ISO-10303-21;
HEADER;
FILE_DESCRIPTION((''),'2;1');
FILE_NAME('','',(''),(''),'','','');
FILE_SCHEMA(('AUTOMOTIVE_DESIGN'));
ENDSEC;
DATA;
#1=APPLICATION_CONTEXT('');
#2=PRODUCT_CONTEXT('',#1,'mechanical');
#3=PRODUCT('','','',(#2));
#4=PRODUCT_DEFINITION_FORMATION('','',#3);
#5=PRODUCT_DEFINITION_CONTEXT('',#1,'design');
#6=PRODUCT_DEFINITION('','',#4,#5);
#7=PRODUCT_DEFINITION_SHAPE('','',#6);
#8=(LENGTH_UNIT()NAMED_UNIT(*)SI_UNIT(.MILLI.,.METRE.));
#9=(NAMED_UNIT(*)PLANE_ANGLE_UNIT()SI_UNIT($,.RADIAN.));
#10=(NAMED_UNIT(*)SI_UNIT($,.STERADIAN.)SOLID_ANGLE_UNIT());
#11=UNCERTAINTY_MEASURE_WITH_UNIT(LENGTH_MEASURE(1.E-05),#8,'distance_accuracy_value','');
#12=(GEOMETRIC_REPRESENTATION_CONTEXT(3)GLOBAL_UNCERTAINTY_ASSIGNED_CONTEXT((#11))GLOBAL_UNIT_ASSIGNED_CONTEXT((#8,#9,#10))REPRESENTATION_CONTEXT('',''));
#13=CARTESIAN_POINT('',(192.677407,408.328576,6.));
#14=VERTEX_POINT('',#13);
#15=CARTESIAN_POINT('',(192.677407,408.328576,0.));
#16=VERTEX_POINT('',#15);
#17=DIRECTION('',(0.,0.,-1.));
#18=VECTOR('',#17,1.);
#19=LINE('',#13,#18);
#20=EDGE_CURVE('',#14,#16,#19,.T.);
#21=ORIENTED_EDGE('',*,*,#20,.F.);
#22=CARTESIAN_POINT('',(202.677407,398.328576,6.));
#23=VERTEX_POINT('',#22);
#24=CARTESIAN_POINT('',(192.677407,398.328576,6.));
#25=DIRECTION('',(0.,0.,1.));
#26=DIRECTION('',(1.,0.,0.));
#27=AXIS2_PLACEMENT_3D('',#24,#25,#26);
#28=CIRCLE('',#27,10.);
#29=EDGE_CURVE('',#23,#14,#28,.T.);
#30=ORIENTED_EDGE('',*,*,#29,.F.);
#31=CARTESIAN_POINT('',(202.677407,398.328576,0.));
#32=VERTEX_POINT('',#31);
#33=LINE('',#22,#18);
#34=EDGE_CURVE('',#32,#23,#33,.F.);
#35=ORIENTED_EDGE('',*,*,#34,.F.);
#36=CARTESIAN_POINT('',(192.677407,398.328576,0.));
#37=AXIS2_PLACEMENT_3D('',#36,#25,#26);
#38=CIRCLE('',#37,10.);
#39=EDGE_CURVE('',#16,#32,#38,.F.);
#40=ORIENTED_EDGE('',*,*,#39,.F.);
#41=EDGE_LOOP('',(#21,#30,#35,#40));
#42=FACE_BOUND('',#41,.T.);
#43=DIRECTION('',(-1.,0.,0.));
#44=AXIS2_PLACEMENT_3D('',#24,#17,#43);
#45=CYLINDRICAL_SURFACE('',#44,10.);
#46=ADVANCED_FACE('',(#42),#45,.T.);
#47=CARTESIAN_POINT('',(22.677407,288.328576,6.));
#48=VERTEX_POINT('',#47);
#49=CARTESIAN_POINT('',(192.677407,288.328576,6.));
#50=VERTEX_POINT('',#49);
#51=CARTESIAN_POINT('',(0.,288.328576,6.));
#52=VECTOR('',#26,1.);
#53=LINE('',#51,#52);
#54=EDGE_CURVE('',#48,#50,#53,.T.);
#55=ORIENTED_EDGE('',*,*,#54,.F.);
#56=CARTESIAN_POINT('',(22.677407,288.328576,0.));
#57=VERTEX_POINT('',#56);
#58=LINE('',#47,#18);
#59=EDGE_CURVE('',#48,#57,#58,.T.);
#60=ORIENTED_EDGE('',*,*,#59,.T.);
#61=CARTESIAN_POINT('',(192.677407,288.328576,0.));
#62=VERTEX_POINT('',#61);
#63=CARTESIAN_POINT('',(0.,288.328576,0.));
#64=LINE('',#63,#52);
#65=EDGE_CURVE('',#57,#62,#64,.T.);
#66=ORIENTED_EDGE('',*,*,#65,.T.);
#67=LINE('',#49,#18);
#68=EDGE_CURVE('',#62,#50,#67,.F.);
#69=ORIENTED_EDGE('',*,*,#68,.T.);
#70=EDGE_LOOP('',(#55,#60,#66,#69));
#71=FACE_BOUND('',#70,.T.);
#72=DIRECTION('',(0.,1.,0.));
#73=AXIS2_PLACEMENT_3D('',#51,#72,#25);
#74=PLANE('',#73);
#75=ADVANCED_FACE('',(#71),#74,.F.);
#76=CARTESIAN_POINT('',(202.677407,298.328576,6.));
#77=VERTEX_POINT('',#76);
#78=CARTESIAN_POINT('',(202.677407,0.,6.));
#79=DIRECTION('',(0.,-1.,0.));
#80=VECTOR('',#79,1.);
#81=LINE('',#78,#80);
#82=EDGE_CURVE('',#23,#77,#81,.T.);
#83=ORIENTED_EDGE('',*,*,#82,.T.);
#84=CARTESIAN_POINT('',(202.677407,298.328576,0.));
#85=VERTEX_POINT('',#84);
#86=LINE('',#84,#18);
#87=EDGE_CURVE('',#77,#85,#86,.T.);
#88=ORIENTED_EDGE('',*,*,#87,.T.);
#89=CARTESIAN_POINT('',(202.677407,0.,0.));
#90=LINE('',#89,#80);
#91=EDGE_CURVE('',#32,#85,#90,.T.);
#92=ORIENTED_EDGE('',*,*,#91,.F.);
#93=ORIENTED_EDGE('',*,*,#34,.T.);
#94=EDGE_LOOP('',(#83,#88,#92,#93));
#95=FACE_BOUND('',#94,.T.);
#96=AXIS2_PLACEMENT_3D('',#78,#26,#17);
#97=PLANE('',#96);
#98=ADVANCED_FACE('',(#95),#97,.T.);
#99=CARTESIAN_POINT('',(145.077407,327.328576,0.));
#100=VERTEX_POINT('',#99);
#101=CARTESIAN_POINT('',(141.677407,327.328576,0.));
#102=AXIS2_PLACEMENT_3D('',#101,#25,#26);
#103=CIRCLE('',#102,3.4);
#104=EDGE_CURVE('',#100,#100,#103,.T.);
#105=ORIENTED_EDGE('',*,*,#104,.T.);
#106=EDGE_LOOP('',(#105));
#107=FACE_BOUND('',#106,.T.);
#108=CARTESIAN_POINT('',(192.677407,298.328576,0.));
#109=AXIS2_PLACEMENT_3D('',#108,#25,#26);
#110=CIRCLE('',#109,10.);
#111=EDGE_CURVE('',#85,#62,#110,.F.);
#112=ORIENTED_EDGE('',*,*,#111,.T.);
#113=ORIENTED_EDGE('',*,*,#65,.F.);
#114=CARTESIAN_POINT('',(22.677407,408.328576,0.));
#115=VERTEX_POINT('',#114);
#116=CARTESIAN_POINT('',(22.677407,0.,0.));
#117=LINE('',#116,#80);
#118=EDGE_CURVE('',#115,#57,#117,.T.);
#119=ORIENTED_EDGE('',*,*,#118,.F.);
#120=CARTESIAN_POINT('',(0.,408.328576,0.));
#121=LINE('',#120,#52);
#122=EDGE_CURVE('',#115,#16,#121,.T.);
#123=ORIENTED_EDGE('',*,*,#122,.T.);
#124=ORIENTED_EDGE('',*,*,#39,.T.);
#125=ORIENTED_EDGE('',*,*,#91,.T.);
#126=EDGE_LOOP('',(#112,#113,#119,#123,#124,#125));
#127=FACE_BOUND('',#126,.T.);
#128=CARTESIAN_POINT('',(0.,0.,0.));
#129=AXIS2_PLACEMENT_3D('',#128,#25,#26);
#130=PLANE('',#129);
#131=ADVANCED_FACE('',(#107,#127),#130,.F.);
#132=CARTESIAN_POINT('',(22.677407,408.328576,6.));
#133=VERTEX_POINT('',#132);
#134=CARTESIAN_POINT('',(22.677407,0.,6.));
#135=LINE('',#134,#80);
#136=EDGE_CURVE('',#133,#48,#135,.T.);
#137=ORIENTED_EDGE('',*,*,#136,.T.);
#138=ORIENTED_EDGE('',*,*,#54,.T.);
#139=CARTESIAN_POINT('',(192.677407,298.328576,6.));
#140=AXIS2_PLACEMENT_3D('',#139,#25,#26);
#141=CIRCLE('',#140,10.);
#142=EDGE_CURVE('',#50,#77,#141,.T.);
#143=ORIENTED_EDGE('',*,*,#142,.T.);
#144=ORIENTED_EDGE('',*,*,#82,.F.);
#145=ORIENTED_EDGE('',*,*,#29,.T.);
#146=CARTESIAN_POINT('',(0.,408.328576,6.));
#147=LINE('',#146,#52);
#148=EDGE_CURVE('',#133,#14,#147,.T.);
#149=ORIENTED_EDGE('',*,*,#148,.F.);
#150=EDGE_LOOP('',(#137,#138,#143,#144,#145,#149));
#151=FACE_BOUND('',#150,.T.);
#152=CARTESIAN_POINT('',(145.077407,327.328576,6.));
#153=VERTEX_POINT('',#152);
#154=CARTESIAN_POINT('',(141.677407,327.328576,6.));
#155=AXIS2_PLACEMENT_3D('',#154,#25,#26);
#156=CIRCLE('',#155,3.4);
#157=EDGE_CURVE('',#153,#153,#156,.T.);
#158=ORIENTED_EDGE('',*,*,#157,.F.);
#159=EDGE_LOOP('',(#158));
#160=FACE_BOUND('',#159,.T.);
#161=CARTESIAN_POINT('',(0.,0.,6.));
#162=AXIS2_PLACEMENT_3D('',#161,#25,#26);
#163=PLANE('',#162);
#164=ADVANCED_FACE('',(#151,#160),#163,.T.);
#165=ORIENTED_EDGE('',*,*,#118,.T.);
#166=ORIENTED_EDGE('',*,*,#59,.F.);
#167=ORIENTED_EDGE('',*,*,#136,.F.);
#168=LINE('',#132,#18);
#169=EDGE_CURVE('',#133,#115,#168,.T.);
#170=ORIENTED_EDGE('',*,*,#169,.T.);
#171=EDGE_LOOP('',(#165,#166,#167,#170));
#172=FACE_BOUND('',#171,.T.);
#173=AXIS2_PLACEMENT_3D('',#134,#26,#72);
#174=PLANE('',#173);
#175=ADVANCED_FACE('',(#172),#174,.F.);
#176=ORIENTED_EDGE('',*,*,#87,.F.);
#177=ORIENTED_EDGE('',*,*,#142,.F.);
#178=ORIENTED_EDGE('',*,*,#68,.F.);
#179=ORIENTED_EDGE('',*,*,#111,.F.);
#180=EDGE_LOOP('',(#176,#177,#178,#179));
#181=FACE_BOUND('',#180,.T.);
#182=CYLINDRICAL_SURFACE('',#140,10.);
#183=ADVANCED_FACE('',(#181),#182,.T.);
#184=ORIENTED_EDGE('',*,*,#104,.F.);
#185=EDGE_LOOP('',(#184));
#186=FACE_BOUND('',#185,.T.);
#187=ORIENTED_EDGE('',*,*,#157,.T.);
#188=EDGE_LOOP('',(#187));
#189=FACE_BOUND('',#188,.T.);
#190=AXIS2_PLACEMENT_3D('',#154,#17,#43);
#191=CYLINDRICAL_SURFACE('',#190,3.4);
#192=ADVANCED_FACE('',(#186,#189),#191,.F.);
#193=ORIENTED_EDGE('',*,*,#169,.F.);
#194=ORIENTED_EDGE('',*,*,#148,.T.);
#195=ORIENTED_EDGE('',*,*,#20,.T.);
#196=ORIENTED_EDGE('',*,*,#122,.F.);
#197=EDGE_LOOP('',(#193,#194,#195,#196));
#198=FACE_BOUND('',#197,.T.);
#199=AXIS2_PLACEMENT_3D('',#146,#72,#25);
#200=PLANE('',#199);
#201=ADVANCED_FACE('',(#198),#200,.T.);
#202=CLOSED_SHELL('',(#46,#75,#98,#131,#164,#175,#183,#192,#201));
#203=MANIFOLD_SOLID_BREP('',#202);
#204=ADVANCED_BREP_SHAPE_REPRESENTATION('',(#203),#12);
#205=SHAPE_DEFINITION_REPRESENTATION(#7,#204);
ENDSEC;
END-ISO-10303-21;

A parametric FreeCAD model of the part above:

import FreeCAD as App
import Part
import Sketcher

V = App.Vector


def edges_at(feature, points):
    """Names of the edges that pass closest to the given points."""
    edges = feature.Shape.Edges
    near = lambda p: min(range(len(edges)), key=lambda i: edges[i].distToShape(Part.Vertex(*p))[0])
    return sorted({f"Edge{near(p) + 1}" for p in points})


def add_polygon(sketch, points):
    """Adds a closed chain of lines whose ends are joined by coincident constraints."""
    first, n = sketch.GeometryCount, len(points)
    for a, b in zip(points, points[1:] + points[:1]):
        sketch.addGeometry(Part.LineSegment(App.Vector(*a, 0), App.Vector(*b, 0)), False)
    for i in range(n):
        sketch.addConstraint(Sketcher.Constraint("Coincident", first + i, 2, first + (i + 1) % n, 1))

doc = App.newDocument("Part")
body = doc.addObject("PartDesign::Body", "Body")

# Sketch on XY plane
sketch1 = body.newObject("Sketcher::SketchObject", "Sketch")
sketch1.AttachmentSupport = (doc.getObject("XY_Plane"), [""])
sketch1.MapMode = "FlatFace"
add_polygon(sketch1, [(22.7, 408.3), (22.7, 288.3), (202.7, 288.3), (202.7, 408.3)])  # lines 0-3
sketch1.addGeometry(Part.Circle(V(141.7, 327.3, 0), V(0, 0, 1), 3.4), False)  # 4
sketch1.addConstraint([
    Sketcher.Constraint("Vertical", 0),
    Sketcher.Constraint("Horizontal", 1),
    Sketcher.Constraint("Vertical", 2),
    Sketcher.Constraint("Horizontal", 3),
    Sketcher.Constraint("Diameter", 4, 6.8),
    Sketcher.Constraint("DistanceX", 1, 1, 1, 2, 180.0),
    Sketcher.Constraint("DistanceY", 0, 2, 0, 1, 120.0),
    Sketcher.Constraint("DistanceX", 0, 2, 4, 3, 119.0),
    Sketcher.Constraint("DistanceY", 0, 2, 4, 3, 39.0),
    Sketcher.Constraint("DistanceX", -1, 1, 4, 3, 141.677407),
    Sketcher.Constraint("DistanceY", -1, 1, 4, 3, 327.328576),
])
pad1 = body.newObject("PartDesign::Pad", "Pad")
pad1.Profile = sketch1
pad1.Length = 6
doc.recompute()

fillet = body.newObject("PartDesign::Fillet", "Fillet")
fillet.Base = (pad1, edges_at(pad1, [(202.677, 288.329, 3), (202.677, 408.329, 3)]))
fillet.Radius = 10

doc.recompute()
